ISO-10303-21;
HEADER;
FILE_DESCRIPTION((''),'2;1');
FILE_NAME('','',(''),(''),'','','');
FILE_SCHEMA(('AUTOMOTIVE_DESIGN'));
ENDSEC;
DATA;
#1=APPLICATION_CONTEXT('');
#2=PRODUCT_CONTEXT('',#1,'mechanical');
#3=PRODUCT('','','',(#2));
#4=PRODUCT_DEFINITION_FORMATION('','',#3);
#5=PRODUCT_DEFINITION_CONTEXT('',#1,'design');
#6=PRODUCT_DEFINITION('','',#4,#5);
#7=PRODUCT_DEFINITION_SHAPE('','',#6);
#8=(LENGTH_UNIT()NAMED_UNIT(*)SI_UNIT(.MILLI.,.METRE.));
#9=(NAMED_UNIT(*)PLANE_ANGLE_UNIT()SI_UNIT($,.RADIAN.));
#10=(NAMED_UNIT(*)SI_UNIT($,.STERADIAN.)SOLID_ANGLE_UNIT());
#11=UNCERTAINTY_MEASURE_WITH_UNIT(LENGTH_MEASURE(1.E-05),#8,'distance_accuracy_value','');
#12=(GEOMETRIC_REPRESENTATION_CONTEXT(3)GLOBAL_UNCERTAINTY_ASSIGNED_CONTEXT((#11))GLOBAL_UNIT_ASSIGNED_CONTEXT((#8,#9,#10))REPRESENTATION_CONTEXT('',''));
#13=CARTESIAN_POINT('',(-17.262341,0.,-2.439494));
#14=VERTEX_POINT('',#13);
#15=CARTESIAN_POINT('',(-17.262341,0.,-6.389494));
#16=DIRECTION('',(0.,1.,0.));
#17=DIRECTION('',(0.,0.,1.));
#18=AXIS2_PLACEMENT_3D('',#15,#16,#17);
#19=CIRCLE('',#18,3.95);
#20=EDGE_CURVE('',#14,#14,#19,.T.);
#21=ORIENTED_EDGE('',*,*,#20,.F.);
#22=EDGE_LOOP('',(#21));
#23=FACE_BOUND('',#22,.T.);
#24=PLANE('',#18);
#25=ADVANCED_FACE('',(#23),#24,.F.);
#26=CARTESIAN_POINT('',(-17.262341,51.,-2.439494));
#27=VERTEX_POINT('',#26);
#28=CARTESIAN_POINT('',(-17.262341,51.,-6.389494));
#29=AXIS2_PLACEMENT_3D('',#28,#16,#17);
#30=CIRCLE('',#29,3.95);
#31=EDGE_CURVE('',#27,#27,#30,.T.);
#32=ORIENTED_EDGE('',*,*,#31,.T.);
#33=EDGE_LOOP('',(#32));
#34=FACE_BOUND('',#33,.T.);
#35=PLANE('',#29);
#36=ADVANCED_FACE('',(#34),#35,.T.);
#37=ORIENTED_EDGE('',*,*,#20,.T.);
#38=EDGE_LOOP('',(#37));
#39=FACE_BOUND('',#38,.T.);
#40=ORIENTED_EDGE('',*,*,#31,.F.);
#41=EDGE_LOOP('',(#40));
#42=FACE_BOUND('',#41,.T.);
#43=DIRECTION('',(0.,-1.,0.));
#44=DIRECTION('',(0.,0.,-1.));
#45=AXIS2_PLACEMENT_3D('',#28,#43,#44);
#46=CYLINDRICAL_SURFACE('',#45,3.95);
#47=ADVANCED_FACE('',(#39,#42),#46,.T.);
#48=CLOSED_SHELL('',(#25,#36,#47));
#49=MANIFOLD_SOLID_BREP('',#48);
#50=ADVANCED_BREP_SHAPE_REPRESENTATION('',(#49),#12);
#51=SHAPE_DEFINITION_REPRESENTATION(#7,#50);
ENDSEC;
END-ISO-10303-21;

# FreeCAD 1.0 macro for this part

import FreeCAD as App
import Part
import Sketcher
Q = App.Units.Quantity

doc = App.newDocument("Part")
body = doc.addObject("PartDesign::Body", "Body")

sketch1 = body.newObject("Sketcher::SketchObject", "Sketch")
sketch1.AttachmentSupport = (doc.getObject("XZ_Plane"), [""])
sketch1.MapMode = "FlatFace"
sketch1.addGeometry(Part.Circle(App.Vector(-17.3, -6.4, 0), App.Vector(0, 0, 1), 4), False)
sketch1.addConstraint([
    Sketcher.Constraint("Diameter", 0, Q("7.9 mm")),
    Sketcher.Constraint("DistanceX", 0, 3, -1, 1, Q("17.262341 mm")),
    Sketcher.Constraint("DistanceY", 0, 3, -1, 1, Q("6.389494 mm")),
])
pad1 = body.newObject("PartDesign::Pad", "Pad")
pad1.Profile = sketch1
pad1.Length = 51
pad1.Reversed = True

doc.recompute()
